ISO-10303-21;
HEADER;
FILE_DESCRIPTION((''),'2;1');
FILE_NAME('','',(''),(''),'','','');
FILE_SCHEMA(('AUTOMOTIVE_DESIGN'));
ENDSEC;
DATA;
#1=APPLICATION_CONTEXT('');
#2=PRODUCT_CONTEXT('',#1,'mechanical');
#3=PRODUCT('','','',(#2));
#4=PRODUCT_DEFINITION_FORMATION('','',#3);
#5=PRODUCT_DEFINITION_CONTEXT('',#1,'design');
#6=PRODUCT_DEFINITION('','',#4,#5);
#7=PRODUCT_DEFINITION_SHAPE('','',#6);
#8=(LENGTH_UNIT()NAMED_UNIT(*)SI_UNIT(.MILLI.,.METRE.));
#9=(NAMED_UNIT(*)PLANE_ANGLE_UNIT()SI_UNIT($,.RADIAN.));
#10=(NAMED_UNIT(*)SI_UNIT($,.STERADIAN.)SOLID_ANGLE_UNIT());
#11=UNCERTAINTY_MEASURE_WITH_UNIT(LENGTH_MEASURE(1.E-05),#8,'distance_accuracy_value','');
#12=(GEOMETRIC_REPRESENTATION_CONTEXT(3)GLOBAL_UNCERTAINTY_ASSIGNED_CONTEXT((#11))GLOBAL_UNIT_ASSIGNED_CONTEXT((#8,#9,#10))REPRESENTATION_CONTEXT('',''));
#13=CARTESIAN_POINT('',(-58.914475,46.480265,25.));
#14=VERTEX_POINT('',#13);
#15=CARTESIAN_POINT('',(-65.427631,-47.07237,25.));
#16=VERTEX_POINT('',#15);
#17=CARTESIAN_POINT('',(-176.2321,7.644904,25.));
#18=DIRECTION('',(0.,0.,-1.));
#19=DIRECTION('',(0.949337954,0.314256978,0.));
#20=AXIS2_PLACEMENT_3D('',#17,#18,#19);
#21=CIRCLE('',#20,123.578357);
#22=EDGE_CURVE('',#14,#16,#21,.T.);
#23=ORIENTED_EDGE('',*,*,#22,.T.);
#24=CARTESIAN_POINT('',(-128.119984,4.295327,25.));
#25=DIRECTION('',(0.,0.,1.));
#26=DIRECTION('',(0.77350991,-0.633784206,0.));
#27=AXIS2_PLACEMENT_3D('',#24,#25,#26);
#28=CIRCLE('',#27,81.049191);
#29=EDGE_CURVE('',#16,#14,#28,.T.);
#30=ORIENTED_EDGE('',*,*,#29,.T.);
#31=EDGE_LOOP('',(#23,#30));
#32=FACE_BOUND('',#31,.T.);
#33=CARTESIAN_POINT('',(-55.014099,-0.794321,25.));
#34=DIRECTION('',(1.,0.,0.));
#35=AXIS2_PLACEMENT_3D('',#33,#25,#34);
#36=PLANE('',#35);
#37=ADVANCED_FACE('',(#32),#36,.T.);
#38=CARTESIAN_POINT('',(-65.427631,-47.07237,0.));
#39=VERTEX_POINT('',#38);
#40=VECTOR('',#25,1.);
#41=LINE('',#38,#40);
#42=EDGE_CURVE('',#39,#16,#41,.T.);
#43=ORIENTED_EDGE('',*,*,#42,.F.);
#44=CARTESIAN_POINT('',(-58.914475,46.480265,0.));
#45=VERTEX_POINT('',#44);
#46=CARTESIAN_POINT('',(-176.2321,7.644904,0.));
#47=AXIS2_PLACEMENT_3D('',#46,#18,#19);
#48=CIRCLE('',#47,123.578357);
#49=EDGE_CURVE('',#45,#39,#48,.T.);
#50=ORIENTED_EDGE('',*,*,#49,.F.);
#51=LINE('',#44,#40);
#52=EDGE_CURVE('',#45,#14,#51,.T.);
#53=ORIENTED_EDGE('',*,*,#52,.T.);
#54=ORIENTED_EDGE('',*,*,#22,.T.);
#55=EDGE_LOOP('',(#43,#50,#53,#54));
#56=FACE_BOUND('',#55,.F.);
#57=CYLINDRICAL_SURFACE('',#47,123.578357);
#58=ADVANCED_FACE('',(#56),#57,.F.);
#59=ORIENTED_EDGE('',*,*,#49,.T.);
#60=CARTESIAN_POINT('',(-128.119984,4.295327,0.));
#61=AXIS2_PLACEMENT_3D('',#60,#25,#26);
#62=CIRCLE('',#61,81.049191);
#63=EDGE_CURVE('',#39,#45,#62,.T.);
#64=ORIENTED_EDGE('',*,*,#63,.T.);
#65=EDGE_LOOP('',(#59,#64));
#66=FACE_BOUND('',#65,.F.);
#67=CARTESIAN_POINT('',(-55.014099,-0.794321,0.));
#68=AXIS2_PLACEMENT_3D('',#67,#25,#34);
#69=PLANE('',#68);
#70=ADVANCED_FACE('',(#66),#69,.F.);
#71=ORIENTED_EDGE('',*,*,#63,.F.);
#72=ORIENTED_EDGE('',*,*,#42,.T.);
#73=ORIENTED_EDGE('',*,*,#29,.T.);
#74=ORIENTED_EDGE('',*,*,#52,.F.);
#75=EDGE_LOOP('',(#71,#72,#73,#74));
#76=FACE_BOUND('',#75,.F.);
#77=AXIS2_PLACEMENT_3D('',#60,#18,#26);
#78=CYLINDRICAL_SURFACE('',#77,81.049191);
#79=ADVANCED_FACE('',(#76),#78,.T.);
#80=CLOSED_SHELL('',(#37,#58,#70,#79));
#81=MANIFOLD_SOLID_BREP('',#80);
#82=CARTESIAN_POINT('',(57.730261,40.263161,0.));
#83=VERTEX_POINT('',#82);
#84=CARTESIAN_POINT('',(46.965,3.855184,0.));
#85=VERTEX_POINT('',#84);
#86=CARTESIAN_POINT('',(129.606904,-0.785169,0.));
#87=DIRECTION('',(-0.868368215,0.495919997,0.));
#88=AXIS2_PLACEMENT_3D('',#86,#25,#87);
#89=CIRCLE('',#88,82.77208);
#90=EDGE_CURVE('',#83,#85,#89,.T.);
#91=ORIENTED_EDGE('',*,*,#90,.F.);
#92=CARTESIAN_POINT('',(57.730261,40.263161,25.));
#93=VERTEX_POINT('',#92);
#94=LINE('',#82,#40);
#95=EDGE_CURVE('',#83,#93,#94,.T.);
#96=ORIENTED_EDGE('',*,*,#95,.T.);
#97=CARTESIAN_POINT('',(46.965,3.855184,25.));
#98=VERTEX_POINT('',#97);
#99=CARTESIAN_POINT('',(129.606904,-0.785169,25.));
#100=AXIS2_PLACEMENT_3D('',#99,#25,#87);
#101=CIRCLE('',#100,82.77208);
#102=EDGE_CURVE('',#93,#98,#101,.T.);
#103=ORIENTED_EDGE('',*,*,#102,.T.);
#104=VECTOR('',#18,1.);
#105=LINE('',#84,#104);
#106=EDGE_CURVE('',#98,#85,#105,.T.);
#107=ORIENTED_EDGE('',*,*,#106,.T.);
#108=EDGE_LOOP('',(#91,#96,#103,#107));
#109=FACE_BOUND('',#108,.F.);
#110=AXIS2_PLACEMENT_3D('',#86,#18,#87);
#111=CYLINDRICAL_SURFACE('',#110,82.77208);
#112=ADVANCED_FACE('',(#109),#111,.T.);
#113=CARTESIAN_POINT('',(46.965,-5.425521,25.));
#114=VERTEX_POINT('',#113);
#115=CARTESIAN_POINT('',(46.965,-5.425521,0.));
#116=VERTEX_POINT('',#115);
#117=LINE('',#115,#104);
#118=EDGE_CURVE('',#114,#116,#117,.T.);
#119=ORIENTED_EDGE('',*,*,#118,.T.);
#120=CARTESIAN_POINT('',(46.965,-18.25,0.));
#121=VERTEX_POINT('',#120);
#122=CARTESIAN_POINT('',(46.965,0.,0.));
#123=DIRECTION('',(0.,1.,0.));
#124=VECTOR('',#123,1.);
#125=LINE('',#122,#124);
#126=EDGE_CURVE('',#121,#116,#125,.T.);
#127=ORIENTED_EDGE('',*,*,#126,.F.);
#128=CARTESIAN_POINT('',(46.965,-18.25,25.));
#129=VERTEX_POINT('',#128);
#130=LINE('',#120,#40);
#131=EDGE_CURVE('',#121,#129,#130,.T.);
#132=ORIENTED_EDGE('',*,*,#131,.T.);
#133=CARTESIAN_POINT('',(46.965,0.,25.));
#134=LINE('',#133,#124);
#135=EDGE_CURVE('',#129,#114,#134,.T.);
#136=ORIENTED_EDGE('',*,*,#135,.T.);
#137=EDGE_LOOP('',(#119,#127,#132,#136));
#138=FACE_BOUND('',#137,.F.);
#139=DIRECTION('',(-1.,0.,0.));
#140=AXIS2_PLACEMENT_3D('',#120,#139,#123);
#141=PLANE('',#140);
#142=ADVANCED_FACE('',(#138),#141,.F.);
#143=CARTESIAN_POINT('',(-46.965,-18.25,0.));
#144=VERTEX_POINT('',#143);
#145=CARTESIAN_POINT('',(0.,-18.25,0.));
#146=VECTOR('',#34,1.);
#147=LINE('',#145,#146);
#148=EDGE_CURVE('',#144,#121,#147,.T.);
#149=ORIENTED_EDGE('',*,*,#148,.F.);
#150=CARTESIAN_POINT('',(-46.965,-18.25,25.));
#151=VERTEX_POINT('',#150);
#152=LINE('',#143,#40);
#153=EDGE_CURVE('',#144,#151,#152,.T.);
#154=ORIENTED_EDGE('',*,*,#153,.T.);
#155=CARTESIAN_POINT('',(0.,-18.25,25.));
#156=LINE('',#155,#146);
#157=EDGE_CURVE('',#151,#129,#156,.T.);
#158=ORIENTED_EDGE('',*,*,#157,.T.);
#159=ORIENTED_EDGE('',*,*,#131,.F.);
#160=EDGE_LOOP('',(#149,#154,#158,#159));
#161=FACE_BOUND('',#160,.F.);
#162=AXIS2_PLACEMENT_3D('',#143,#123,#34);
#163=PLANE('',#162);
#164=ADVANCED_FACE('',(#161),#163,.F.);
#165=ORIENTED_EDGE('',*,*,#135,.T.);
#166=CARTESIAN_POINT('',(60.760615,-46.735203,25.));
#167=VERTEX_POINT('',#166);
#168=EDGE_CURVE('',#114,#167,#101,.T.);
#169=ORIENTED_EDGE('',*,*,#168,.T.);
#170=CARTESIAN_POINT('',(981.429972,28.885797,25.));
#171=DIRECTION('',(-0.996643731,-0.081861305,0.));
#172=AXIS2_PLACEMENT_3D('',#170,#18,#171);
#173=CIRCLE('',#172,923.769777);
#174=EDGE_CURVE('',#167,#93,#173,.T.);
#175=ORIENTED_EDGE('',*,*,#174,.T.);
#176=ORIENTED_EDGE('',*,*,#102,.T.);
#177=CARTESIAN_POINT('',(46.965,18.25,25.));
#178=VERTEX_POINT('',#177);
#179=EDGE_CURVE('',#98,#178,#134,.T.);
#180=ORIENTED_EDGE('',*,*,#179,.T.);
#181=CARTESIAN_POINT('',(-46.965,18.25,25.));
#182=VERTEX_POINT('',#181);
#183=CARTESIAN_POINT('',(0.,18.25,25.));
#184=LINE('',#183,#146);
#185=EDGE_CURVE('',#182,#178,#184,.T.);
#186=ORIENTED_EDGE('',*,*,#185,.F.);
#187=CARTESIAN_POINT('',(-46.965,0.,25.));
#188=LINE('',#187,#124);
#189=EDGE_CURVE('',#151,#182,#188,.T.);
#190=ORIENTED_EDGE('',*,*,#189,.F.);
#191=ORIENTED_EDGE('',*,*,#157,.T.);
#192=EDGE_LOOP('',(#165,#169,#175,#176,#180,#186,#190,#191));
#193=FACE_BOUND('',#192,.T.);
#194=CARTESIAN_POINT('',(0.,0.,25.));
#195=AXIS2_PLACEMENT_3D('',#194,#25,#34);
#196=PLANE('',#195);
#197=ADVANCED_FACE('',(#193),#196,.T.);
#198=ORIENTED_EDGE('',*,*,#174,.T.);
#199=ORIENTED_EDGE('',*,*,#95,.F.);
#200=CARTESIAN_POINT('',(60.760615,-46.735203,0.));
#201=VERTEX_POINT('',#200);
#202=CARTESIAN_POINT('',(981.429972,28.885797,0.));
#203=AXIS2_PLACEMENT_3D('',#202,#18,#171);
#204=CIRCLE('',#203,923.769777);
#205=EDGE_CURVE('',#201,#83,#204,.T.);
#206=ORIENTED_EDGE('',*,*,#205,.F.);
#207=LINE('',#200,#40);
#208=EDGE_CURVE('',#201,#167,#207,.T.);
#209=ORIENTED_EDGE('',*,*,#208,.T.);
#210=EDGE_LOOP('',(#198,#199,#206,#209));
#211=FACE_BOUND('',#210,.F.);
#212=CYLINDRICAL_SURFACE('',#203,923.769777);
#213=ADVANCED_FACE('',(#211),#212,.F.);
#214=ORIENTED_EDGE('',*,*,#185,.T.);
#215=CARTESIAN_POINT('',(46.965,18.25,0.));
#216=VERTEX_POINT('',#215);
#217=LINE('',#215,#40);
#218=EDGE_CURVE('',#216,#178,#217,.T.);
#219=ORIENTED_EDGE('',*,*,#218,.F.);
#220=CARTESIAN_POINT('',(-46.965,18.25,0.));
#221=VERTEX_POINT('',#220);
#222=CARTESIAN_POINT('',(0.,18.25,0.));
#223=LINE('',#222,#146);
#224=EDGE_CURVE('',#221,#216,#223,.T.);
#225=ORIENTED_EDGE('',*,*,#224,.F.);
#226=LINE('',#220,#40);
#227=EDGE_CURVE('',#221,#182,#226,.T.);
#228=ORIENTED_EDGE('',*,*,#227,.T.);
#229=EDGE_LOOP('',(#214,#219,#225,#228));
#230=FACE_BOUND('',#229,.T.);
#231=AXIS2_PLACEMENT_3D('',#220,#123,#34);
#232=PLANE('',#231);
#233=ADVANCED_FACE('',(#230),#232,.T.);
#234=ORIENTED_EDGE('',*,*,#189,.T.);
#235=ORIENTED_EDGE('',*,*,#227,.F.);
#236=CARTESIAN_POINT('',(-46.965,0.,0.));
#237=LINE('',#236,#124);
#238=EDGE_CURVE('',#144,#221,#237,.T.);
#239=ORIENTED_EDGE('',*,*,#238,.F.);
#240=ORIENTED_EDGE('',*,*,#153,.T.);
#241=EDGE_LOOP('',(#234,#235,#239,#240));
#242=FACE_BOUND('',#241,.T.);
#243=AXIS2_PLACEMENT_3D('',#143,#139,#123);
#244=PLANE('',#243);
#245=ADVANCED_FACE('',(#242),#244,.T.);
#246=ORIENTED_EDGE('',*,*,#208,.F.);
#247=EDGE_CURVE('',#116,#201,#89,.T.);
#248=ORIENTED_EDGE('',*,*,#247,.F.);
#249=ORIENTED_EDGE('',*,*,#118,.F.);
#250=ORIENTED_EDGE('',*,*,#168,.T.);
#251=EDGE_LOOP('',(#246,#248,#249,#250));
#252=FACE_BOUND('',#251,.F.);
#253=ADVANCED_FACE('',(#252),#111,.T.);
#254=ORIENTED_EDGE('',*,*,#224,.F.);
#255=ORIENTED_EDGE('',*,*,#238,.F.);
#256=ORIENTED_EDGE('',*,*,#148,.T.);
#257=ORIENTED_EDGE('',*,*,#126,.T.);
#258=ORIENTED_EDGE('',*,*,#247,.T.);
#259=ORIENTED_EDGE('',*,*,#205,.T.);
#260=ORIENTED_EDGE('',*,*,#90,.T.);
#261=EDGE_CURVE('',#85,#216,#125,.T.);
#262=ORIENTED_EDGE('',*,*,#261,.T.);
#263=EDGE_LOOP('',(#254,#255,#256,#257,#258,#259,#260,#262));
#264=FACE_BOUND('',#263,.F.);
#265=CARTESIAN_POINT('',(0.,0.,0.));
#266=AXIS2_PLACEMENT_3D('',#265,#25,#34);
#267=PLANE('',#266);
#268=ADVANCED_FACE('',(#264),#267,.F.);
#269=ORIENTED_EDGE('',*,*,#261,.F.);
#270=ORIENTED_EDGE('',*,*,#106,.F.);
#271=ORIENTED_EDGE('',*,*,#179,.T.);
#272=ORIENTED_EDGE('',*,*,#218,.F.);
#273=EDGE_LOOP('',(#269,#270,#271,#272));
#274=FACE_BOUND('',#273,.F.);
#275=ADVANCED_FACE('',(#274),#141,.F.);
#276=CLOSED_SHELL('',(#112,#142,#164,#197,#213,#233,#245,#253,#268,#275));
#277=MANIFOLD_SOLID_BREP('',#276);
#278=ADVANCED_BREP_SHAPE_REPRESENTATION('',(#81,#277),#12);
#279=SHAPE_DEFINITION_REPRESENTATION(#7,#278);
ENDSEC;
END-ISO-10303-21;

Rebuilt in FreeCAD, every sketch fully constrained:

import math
import FreeCAD as App
import Part
import Sketcher
from FreeCAD import Vector
Q = App.Units.Quantity


def add_polygon(sketch, points):
    """Adds a closed chain of lines whose ends are joined by coincident constraints."""
    first, n = sketch.GeometryCount, len(points)
    for a, b in zip(points, points[1:] + points[:1]):
        sketch.addGeometry(Part.LineSegment(App.Vector(*a, 0), App.Vector(*b, 0)), False)
    for i in range(n):
        sketch.addConstraint(Sketcher.Constraint("Coincident", first + i, 2, first + (i + 1) % n, 1))

doc = App.newDocument("Part")
body = doc.addObject("PartDesign::Body", "Body")
body.AllowCompound = True

sketch1 = body.newObject("Sketcher::SketchObject", "Sketch")
sketch1.AttachmentSupport = (doc.getObject("XY_Plane"), [""])
sketch1.MapMode = "FlatFace"
sketch1.addGeometry([
    Part.ArcOfCircle(Part.Circle(Vector(-176, 8, 0), Vector(0, 0, 1), 124), math.radians(-26), math.radians(18)),
    Part.ArcOfCircle(Part.Circle(Vector(-128, 4, 0), Vector(0, 0, 1), 81), math.radians(-39), math.radians(31)),
    Part.ArcOfCircle(Part.Circle(Vector(981, 29, 0), Vector(0, 0, 1), 924), math.radians(179.29), math.radians(184.7)),
    Part.ArcOfCircle(Part.Circle(Vector(130, -1, 0), Vector(0, 0, 1), 83), math.radians(150), math.radians(214)),
], False)
sketch1.addConstraint([
    Sketcher.Constraint("Coincident", 0, 1, 1, 1),
    Sketcher.Constraint("Coincident", 1, 2, 0, 2),
    Sketcher.Constraint("Coincident", 2, 1, 3, 1),
    Sketcher.Constraint("Coincident", 3, 2, 2, 2),
    Sketcher.Constraint("Radius", 1, Q("81.049191 mm")),
    Sketcher.Constraint("Radius", 3, Q("82.77208 mm")),
    Sketcher.Constraint("Radius", 0, Q("123.578357 mm")),
    Sketcher.Constraint("Radius", 2, Q("923.769777 mm")),
    Sketcher.Constraint("DistanceX", 0, 3, -1, 1, Q("176.2321 mm")),
    Sketcher.Constraint("DistanceY", 0, 1, 3, 3, Q("46.287201 mm")),
    Sketcher.Constraint("DistanceX", 1, 3, 3, 2, Q("188.880599 mm")),
    Sketcher.Constraint("DistanceX", -1, 1, 2, 3, Q("981.429972 mm")),
    Sketcher.Constraint("DistanceY", 3, 3, -1, 1, Q("0.785169 mm")),
    Sketcher.Constraint("DistanceX", 0, 1, -1, 1, Q("65.427631 mm")),
    Sketcher.Constraint("DistanceX", -1, 1, 2, 1, Q("57.730261 mm")),
    Sketcher.Constraint("DistanceY", 1, 3, 2, 3, Q("24.590469 mm")),
])
pad1 = body.newObject("PartDesign::Pad", "Pad")
pad1.Profile = sketch1
pad1.Length = 25

sketch2 = body.newObject("Sketcher::SketchObject", "Sketch001")
sketch2.AttachmentSupport = (doc.getObject("XY_Plane"), [""])
sketch2.MapMode = "FlatFace"
add_polygon(sketch2, [(-47, 18), (-47, -18), (47, -18), (47, 18)])
sketch2.addConstraint([
    Sketcher.Constraint("Vertical", 0),
    Sketcher.Constraint("Horizontal", 1),
    Sketcher.Constraint("Vertical", 2),
    Sketcher.Constraint("Horizontal", 3),
    Sketcher.Constraint("Symmetric", 0, 2, 2, 2, -1, 1),
    Sketcher.Constraint("DistanceY", 0, 2, 0, 1, Q("36.5 mm")),
    Sketcher.Constraint("DistanceX", 1, 1, 1, 2, Q("93.93 mm")),
])
pad2 = body.newObject("PartDesign::Pad", "Pad001")
pad2.Profile = sketch2
pad2.Length = 25

doc.recompute()
